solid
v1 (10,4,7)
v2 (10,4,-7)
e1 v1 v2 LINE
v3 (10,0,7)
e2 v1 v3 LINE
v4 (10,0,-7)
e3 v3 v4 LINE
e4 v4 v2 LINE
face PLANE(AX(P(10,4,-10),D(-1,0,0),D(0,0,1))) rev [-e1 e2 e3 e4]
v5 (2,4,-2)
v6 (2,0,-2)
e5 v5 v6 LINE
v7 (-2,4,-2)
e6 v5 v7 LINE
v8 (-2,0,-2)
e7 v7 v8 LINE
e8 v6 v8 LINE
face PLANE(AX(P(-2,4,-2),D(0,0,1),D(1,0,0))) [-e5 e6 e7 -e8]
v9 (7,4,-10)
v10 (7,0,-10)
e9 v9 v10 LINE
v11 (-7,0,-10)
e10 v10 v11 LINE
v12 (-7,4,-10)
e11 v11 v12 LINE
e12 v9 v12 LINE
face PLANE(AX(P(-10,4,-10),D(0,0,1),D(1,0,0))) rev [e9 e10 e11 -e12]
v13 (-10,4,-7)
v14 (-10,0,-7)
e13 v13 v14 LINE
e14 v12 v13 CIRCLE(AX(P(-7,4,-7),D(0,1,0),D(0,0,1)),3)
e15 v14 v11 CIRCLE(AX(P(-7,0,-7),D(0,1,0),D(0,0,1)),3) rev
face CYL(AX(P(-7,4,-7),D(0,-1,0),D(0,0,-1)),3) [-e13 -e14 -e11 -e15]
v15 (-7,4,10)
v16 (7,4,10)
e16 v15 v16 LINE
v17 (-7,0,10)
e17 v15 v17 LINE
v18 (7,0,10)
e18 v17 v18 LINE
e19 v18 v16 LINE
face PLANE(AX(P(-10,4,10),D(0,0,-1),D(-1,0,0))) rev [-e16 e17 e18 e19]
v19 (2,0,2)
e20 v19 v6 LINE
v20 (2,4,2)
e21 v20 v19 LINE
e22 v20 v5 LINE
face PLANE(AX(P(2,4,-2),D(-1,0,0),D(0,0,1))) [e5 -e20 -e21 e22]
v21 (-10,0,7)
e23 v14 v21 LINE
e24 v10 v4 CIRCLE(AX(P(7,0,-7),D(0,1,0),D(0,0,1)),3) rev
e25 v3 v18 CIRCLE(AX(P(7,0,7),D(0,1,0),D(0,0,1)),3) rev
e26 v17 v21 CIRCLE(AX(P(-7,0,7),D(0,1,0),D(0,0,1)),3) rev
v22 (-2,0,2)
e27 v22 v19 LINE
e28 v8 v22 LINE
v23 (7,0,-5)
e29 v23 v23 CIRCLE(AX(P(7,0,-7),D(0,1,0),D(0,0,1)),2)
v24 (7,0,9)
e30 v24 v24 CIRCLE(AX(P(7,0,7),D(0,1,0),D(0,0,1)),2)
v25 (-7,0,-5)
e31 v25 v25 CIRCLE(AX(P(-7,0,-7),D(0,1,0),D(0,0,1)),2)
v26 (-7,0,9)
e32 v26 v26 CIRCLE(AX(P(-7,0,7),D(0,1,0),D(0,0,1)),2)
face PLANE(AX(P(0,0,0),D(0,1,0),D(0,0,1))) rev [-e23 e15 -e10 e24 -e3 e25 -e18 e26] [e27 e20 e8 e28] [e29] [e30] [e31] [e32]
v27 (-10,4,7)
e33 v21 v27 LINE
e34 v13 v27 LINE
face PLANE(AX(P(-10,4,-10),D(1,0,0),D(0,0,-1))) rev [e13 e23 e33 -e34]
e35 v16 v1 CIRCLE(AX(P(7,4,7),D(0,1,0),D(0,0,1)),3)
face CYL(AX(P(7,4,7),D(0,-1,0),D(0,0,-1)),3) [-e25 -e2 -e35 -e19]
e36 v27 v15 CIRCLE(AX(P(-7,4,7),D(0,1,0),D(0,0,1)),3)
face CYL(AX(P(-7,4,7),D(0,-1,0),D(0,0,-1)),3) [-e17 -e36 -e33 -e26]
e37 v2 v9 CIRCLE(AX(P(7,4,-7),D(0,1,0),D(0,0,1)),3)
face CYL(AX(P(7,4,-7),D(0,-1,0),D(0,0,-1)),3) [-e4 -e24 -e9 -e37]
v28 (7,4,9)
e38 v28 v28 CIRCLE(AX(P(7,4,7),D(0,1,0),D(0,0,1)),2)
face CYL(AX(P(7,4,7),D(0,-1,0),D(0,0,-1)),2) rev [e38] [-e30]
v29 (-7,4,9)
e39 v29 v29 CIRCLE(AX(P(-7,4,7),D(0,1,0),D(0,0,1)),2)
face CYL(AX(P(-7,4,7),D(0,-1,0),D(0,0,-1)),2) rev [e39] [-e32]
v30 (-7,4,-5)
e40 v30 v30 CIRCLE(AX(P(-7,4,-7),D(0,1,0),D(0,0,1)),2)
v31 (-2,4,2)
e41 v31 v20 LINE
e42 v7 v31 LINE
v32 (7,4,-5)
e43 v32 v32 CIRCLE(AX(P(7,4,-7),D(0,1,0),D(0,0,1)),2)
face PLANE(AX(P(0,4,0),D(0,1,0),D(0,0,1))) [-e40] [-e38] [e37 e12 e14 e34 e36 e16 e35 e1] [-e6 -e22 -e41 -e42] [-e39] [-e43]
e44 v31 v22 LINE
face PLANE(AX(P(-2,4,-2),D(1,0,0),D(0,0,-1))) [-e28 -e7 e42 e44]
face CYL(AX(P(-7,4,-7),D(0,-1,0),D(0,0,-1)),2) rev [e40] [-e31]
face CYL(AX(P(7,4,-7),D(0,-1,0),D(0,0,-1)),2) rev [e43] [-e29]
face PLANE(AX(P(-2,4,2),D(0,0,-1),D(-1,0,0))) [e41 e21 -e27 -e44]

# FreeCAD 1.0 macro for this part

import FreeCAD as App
import Part
import Sketcher
Q = App.Units.Quantity


def edges_at(feature, points):
    """Names of the edges that pass closest to the given points."""
    edges = feature.Shape.Edges
    near = lambda p: min(range(len(edges)), key=lambda i: edges[i].distToShape(Part.Vertex(*p))[0])
    return sorted({f"Edge{near(p) + 1}" for p in points})


def add_polygon(sketch, points):
    """Adds a closed chain of lines whose ends are joined by coincident constraints."""
    first, n = sketch.GeometryCount, len(points)
    for a, b in zip(points, points[1:] + points[:1]):
        sketch.addGeometry(Part.LineSegment(App.Vector(*a, 0), App.Vector(*b, 0)), False)
    for i in range(n):
        sketch.addConstraint(Sketcher.Constraint("Coincident", first + i, 2, first + (i + 1) % n, 1))

doc = App.newDocument("Part")
body = doc.addObject("PartDesign::Body", "Body")

# Sketch on XZ plane
sketch1 = doc.addObject("Sketcher::SketchObject", "Sketch")
body.addObject(sketch1)
sketch1.AttachmentSupport = (doc.XZ_Plane, [""])
sketch1.MapMode = "FlatFace"
add_polygon(sketch1, [(-10, -10), (-10, 10), (10, 10), (10, -10)])  # lines 0-3
sketch1.addGeometry(Part.Circle(App.Vector(-7, 7, 0), App.Vector(0, 0, 1), 2), False)  # 4
sketch1.addGeometry(Part.Circle(App.Vector(7, 7, 0), App.Vector(0, 0, 1), 2), False)  # 5
sketch1.addGeometry(Part.Circle(App.Vector(-7, -7, 0), App.Vector(0, 0, 1), 2), False)  # 6
add_polygon(sketch1, [(2, 2), (-2, 2), (-2, -2), (2, -2)])  # lines 7-10
sketch1.addGeometry(Part.Circle(App.Vector(7, -7, 0), App.Vector(0, 0, 1), 2), False)  # 11
sketch1.addConstraint([
    Sketcher.Constraint("Vertical", 0),
    Sketcher.Constraint("Horizontal", 1),
    Sketcher.Constraint("Vertical", 2),
    Sketcher.Constraint("Horizontal", 3),
    Sketcher.Constraint("Horizontal", 7),
    Sketcher.Constraint("Vertical", 8),
    Sketcher.Constraint("Horizontal", 9),
    Sketcher.Constraint("Vertical", 10),
    Sketcher.Constraint("Equal", 4, 5),
    Sketcher.Constraint("Equal", 5, 6),
    Sketcher.Constraint("Equal", 6, 11),
    Sketcher.Constraint("Symmetric", 5, 3, 6, 3, -1, 1),
    Sketcher.Constraint("Symmetric", 4, 3, 11, 3, -1, 1),
    Sketcher.Constraint("Symmetric", 0, 2, 2, 2, -1, 1),
    Sketcher.Constraint("Symmetric", 7, 2, 9, 2, -1, 1),
    Sketcher.Constraint("Symmetric", 4, 3, 5, 3, -2),
    Sketcher.Constraint("Equal", 3, 0),
    Sketcher.Constraint("Equal", 9, 8),
    Sketcher.Constraint("Diameter", 4, Q("4 mm")),
    Sketcher.Constraint("DistanceX", 1, 1, 1, 2, Q("20 mm")),
    Sketcher.Constraint("DistanceX", 7, 2, 7, 1, Q("4 mm")),
    Sketcher.Constraint("DistanceX", 4, 3, -1, 1, Q("7 mm")),
    Sketcher.Constraint("DistanceY", -1, 1, 4, 3, Q("7 mm")),
])
pad1 = doc.addObject("PartDesign::Pad", "Pad")
body.addObject(pad1)
pad1.Profile = sketch1
pad1.Length = 4
pad1.Reversed = True
doc.recompute()

fillet = doc.addObject("PartDesign::Fillet", "Fillet")
body.addObject(fillet)
fillet.Base = (pad1, edges_at(pad1, [
    (-10, 2, -10),
    (10, 2, -10),
    (10, 2, 10),
    (-10, 2, 10),
]))
fillet.Radius = 3

doc.recompute()
